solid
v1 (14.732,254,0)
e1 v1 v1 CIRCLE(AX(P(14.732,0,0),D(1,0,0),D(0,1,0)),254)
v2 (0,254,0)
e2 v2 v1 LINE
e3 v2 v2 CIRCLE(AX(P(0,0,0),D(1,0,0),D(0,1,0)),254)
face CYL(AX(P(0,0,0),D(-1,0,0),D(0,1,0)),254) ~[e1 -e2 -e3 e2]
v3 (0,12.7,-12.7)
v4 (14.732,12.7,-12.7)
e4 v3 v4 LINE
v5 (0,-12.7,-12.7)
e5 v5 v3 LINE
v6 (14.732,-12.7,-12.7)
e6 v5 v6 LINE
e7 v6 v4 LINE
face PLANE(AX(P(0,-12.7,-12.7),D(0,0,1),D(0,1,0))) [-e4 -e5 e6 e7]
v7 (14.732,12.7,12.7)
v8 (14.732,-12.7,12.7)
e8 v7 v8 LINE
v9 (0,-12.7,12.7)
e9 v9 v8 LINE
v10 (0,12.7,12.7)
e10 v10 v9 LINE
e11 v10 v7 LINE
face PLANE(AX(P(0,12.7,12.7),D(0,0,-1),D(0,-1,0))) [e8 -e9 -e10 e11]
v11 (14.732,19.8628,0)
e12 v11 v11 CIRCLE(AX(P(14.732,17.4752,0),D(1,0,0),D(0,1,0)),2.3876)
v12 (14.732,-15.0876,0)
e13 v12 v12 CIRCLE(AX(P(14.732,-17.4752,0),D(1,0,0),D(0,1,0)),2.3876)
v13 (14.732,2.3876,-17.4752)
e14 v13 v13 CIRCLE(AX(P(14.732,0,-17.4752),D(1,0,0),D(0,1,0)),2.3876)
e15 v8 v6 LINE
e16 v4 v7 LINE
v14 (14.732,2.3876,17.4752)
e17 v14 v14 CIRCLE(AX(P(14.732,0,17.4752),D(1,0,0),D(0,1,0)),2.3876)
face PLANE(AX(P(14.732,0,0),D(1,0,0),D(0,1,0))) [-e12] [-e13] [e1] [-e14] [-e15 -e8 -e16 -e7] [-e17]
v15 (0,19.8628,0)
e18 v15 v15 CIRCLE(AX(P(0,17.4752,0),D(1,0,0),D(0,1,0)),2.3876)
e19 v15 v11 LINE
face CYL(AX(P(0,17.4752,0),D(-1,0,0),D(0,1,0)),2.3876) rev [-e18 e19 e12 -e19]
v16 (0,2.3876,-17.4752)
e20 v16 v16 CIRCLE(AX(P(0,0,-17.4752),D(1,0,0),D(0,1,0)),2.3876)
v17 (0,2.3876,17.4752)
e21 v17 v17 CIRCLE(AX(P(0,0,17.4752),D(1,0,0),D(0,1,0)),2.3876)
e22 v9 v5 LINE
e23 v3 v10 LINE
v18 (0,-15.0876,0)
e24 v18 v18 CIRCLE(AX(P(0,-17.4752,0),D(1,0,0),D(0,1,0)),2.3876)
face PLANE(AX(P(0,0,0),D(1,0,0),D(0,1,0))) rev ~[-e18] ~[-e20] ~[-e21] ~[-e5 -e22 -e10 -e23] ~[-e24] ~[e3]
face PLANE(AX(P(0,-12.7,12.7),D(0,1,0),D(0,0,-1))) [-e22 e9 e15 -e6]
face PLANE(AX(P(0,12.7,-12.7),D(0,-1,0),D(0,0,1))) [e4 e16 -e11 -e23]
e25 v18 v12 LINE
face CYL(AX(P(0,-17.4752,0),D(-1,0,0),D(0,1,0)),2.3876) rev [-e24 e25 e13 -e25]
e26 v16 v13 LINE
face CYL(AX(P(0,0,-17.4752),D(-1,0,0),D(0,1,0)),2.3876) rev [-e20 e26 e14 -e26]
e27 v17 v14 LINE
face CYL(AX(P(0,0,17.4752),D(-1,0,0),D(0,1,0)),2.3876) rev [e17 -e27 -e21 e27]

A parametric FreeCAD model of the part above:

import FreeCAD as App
import Part
import Sketcher
from FreeCAD import Vector
Q = App.Units.Quantity

doc = App.newDocument("Part")
params = doc.addObject("Spreadsheet::Sheet", "Params")
for row, (alias, value) in enumerate([
    ("sketch1_diameter", "20 in"),
    ("sketch1_width", "1 in"),
    ("sketch1_diameter2", "0.188 in"),
    ("pad1_length", "0.58 in"),
], start=1):
    params.set(f"A{row}", alias)
    params.set(f"B{row}", "=" + value)
    params.setAlias(f"B{row}", alias)

body = doc.addObject("PartDesign::Body", "Body")

# Sketch on YZ plane
sketch1 = doc.addObject("Sketcher::SketchObject", "Sketch")
body.addObject(sketch1)
sketch1.AttachmentSupport = (doc.YZ_Plane, [""])
sketch1.MapMode = "FlatFace"
sketch1.addGeometry([
    Part.Circle(Vector(0, 0, 0), Vector(0, 0, 1), 254),  # 0
    Part.Circle(Vector(0, -17.5, 0), Vector(0, 0, 1), 2.4),  # 1
    Part.Circle(Vector(-17.5, 0, 0), Vector(0, 0, 1), 2.4),  # 2
    Part.LineSegment(Vector(-12.7, 12.7, 0), Vector(12.7, 12.7, 0)),  # 3
    Part.LineSegment(Vector(12.7, 12.7, 0), Vector(12.7, -12.7, 0)),  # 4
    Part.LineSegment(Vector(12.7, -12.7, 0), Vector(-12.7, -12.7, 0)),  # 5
    Part.LineSegment(Vector(-12.7, -12.7, 0), Vector(-12.7, 12.7, 0)),  # 6
    Part.Circle(Vector(17.5, 0, 0), Vector(0, 0, 1), 2.4),  # 7
    Part.Circle(Vector(0, 17.5, 0), Vector(0, 0, 1), 2.4),  # 8
], False)
sketch1.addConstraint([
    Sketcher.Constraint("Coincident", 3, 2, 4, 1),
    Sketcher.Constraint("Coincident", 4, 2, 5, 1),
    Sketcher.Constraint("Coincident", 5, 2, 6, 1),
    Sketcher.Constraint("Coincident", 6, 2, 3, 1),
    Sketcher.Constraint("Horizontal", 3),
    Sketcher.Constraint("Vertical", 4),
    Sketcher.Constraint("Horizontal", 5),
    Sketcher.Constraint("Vertical", 6),
    Sketcher.Constraint("Coincident", 0, 3, -1, 1),
    Sketcher.Constraint("Equal", 1, 2),
    Sketcher.Constraint("Equal", 2, 7),
    Sketcher.Constraint("Equal", 7, 8),
    Sketcher.Constraint("Symmetric", 2, 3, 7, 3, -1, 1),
    Sketcher.Constraint("Symmetric", 1, 3, 8, 3, -1, 1),
    Sketcher.Constraint("Symmetric", 3, 2, 5, 2, -1, 1),
    Sketcher.Constraint("PointOnObject", 1, 3, -2),
    Sketcher.Constraint("PointOnObject", 2, 3, -1),
    Sketcher.Constraint("Equal", 5, 4),
    Sketcher.Constraint("Diameter", 0, Q("20 in")),
    Sketcher.Constraint("DistanceX", 3, 1, 3, 2, Q("1 in")),
    Sketcher.Constraint("Diameter", 1, Q("0.188 in")),
    Sketcher.Constraint("DistanceX", 3, 2, 7, 3, Q("0.188 in")),
    Sketcher.Constraint("DistanceY", 3, 2, 8, 3, Q("0.188 in")),
])
sketch1.setExpression("Constraints[18]", "Params.sketch1_diameter")
sketch1.setExpression("Constraints[19]", "Params.sketch1_width")
sketch1.setExpression("Constraints[20]", "Params.sketch1_diameter2")
pad1 = doc.addObject("PartDesign::Pad", "Pad")
body.addObject(pad1)
pad1.Profile = sketch1
pad1.setExpression("Length", "Params.pad1_length")

doc.recompute()
